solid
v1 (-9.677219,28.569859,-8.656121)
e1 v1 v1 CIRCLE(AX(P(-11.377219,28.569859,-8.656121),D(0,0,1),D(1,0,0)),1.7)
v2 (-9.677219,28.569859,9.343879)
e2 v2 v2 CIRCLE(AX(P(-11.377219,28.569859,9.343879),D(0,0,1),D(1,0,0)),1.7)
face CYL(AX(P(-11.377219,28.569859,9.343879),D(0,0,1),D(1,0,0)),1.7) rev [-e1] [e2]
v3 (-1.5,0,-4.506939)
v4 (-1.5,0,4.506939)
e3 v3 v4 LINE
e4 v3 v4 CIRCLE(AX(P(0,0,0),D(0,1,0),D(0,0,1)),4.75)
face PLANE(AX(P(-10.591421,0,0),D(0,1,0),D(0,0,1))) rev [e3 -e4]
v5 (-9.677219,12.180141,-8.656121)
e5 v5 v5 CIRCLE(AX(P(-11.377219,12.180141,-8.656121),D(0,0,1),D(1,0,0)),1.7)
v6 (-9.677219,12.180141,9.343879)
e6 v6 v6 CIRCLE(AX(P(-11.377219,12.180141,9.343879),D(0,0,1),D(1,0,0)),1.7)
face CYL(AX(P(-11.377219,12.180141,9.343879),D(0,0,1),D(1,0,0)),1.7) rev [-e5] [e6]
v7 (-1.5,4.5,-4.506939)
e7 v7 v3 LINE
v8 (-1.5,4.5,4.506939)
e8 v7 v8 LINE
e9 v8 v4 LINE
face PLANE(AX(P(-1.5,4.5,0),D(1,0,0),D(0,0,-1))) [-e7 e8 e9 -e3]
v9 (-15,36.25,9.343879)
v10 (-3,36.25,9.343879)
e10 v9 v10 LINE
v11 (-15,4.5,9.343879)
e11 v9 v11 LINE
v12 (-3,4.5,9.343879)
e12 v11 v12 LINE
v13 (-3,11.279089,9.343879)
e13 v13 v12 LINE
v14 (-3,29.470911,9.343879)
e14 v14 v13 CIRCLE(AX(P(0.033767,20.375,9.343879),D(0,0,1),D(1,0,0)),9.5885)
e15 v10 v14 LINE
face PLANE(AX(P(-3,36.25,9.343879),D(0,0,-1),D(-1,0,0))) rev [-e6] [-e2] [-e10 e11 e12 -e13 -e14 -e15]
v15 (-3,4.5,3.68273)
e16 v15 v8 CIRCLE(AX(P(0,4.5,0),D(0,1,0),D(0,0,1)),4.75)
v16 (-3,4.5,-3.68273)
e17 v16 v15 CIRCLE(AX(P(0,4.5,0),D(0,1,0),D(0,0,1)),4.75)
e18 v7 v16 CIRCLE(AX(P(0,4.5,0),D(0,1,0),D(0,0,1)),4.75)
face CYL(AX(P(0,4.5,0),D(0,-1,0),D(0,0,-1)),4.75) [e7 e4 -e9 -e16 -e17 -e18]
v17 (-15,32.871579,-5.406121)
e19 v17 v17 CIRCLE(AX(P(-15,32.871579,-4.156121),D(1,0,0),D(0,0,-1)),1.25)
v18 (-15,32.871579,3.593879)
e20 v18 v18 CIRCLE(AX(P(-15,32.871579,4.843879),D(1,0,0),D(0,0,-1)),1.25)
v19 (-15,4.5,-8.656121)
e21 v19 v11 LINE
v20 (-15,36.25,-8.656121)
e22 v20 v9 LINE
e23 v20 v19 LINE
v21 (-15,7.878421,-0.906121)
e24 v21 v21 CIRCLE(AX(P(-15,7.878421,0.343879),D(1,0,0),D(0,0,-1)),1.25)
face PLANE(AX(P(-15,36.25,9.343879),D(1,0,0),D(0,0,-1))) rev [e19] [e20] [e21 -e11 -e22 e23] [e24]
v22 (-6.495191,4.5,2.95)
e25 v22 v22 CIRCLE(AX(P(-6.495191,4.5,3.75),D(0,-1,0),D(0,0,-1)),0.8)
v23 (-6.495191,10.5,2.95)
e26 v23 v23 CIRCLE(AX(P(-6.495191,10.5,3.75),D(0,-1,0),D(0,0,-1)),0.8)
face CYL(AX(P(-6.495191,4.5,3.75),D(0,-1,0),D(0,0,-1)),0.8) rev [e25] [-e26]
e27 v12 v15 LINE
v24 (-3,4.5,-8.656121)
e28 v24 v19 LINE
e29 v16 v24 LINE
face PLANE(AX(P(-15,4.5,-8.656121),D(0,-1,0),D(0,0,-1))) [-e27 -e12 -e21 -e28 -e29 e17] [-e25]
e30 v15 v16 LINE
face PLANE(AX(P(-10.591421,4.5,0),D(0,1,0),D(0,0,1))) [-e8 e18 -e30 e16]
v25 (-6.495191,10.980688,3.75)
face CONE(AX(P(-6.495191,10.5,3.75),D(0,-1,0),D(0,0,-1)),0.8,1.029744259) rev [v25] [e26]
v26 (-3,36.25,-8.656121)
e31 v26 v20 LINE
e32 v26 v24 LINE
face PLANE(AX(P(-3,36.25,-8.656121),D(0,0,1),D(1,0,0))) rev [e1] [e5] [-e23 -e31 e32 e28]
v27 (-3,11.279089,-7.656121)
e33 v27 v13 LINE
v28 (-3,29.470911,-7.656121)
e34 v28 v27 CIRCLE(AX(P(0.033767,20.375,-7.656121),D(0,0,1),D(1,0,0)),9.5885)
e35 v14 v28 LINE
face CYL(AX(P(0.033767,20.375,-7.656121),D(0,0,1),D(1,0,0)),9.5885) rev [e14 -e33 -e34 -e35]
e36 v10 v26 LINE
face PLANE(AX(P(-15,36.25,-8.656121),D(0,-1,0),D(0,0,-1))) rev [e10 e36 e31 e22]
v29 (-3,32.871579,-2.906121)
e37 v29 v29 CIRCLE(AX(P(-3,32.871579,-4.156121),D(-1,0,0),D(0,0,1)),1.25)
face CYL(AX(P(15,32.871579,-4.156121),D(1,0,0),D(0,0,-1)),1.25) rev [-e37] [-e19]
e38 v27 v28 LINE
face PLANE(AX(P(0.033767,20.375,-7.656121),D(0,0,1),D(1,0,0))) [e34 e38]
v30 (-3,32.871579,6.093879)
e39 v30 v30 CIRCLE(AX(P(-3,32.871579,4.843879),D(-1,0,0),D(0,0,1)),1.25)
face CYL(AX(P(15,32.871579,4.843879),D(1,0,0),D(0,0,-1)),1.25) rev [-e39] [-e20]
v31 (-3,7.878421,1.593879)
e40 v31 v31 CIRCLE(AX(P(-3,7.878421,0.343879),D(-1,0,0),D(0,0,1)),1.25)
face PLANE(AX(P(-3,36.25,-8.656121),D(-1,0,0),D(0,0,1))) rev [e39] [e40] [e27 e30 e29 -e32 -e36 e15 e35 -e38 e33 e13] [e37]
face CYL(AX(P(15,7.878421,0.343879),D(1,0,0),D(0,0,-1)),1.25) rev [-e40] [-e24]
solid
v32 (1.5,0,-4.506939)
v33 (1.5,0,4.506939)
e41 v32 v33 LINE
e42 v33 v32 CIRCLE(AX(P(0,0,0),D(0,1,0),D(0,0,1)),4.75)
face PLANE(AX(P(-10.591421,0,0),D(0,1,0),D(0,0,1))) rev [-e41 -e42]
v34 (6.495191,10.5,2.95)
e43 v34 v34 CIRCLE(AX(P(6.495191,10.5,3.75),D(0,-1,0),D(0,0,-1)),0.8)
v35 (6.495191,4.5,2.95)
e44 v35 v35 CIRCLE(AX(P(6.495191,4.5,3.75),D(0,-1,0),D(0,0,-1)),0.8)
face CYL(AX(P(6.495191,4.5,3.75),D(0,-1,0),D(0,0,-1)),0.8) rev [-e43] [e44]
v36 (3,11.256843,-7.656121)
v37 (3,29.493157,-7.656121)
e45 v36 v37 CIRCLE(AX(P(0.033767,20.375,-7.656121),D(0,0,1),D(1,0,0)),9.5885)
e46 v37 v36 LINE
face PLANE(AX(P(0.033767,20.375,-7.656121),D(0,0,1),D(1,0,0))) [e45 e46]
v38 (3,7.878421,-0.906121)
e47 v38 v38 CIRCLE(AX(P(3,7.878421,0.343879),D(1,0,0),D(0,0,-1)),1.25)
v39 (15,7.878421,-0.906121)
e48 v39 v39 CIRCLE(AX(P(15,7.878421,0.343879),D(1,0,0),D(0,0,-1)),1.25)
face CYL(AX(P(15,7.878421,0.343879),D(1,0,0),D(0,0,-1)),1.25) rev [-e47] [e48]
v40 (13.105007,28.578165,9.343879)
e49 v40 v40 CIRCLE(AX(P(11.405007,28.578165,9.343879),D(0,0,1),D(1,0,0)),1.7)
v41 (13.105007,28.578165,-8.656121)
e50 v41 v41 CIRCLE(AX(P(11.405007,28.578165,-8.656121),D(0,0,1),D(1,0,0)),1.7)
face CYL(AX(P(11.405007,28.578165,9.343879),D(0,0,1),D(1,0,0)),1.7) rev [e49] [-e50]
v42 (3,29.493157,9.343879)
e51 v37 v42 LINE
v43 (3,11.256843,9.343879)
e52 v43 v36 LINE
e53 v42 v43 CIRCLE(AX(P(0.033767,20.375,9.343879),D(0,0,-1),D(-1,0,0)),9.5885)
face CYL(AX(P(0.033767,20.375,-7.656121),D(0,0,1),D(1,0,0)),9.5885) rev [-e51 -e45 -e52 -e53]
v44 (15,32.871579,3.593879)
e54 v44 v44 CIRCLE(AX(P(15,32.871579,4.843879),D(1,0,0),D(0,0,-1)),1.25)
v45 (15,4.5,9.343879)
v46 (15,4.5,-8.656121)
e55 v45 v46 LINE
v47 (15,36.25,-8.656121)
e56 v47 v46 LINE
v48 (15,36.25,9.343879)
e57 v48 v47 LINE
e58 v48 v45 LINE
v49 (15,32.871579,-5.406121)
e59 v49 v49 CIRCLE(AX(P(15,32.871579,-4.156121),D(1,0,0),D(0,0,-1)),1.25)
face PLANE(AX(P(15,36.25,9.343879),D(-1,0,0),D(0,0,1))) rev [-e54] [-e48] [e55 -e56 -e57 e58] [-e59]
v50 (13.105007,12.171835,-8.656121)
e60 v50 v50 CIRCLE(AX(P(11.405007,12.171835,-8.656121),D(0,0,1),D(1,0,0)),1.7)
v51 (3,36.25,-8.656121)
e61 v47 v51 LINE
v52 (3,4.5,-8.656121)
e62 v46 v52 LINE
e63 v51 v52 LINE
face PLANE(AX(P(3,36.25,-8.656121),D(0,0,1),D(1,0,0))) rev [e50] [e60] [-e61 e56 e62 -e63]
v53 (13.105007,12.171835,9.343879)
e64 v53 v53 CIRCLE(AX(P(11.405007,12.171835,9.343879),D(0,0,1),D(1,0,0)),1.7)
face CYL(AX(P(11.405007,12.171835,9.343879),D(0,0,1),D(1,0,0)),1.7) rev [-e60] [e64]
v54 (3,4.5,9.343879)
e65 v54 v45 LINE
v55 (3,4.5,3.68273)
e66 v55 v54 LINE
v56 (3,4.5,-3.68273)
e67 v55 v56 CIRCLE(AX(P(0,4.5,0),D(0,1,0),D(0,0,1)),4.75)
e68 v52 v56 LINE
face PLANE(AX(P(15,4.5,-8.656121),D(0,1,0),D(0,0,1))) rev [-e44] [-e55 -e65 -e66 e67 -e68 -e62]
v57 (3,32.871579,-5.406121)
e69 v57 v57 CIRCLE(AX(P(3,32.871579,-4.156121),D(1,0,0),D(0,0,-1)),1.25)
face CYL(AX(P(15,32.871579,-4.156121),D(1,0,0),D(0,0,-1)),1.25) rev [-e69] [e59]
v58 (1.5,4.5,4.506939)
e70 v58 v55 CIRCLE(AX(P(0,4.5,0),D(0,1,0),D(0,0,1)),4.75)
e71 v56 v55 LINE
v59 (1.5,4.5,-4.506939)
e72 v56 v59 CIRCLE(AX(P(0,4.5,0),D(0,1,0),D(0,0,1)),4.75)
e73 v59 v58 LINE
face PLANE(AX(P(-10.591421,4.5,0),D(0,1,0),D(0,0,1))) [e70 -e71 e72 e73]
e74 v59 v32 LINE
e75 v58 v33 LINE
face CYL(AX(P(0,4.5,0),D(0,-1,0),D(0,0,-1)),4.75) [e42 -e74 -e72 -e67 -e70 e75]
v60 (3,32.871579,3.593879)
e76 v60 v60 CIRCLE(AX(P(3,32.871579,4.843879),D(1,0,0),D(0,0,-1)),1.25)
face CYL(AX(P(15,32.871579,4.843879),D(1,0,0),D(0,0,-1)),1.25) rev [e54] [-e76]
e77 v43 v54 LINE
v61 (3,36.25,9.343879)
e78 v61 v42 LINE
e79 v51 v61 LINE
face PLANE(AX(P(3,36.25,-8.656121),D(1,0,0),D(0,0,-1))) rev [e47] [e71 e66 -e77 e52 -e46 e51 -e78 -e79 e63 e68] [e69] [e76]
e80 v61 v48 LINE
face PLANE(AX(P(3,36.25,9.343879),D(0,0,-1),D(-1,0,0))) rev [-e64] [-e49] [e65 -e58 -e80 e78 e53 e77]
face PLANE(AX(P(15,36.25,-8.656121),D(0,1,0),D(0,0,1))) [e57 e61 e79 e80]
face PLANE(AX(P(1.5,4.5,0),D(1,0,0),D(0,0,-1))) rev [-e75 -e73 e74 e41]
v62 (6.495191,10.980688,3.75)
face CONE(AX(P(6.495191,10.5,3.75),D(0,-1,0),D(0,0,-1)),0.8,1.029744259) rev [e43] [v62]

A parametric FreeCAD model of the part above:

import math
import FreeCAD as App
import Part
import Sketcher
from FreeCAD import Vector
Q = App.Units.Quantity

doc = App.newDocument("Part")
params = doc.addObject("Spreadsheet::Sheet", "Params")
for row, (alias, value) in enumerate([
    ("sketch1_width", "12 mm"),
    ("sketch1_height", "18 mm"),
    ("pad1_length", "31.75 mm"),
    ("sketch2_width", "12 mm"),
    ("sketch2_height", "18 mm"),
    ("pad2_length", "31.75 mm"),
    ("sketch3_radius", "4.75 mm"),
    ("pad3_length", "4.5 mm"),
    ("pocket1_length", "17 mm"),
    ("sketch5_diameter", "3.4 mm"),
    ("hole_diameter", "3.4 mm"),
    ("sketch6_diameter", "2.5 mm"),
    ("hole2_diameter", "2.5 mm"),
    ("sketch7_diameter", "1.6 mm"),
    ("hole3_diameter", "1.6 mm"),
    ("hole3_depth", "6 mm"),
], start=1):
    params.set(f"A{row}", alias)
    params.set(f"B{row}", "=" + value)
    params.setAlias(f"B{row}", alias)

body = doc.addObject("PartDesign::Body", "Body")

# Sketch on XZ plane
sketch1 = body.newObject("Sketcher::SketchObject", "Sketch")
sketch1.AttachmentSupport = (doc.getObject("XZ_Plane"), [""])
sketch1.MapMode = "FlatFace"
sketch1.AttachmentOffset = App.Placement(Vector(0, 0, -4.5), App.Rotation())
sketch1.addGeometry([
    Part.LineSegment(Vector(-3, 9, 0), Vector(-3, -9, 0)),
    Part.LineSegment(Vector(-3, -9, 0), Vector(-15, -9, 0)),
    Part.LineSegment(Vector(-15, -9, 0), Vector(-15, 9, 0)),
    Part.LineSegment(Vector(-15, 9, 0), Vector(-3, 9, 0)),
], False)
sketch1.addConstraint([
    Sketcher.Constraint("Coincident", 0, 2, 1, 1),
    Sketcher.Constraint("Coincident", 1, 2, 2, 1),
    Sketcher.Constraint("Coincident", 2, 2, 3, 1),
    Sketcher.Constraint("Coincident", 3, 2, 0, 1),
    Sketcher.Constraint("Vertical", 0),
    Sketcher.Constraint("Horizontal", 1),
    Sketcher.Constraint("Vertical", 2),
    Sketcher.Constraint("Horizontal", 3),
    Sketcher.Constraint("DistanceX", 1, 2, 1, 1, Q("12 mm")),
    Sketcher.Constraint("DistanceY", 0, 2, 0, 1, Q("18 mm")),
    Sketcher.Constraint("DistanceX", 0, 2, -1, 1, Q("3 mm")),
    Sketcher.Constraint("DistanceY", 0, 2, -1, 1, Q("8.656121 mm")),
])
sketch1.setExpression("Constraints[8]", "Params.sketch1_width")
sketch1.setExpression("Constraints[9]", "Params.sketch1_height")
pad1 = body.newObject("PartDesign::Pad", "Pad")
pad1.Profile = sketch1
pad1.setExpression("Length", "Params.pad1_length")
pad1.Reversed = True
body2 = doc.addObject("PartDesign::Body", "Body001")

# Sketch on XZ plane
sketch2 = body2.newObject("Sketcher::SketchObject", "Sketch001")
sketch2.AttachmentSupport = (doc.getObject("XZ_Plane001"), [""])
sketch2.MapMode = "FlatFace"
sketch2.AttachmentOffset = App.Placement(Vector(0, 0, -4.5), App.Rotation())
sketch2.addGeometry([
    Part.LineSegment(Vector(15, 9, 0), Vector(15, -9, 0)),
    Part.LineSegment(Vector(15, -9, 0), Vector(3, -9, 0)),
    Part.LineSegment(Vector(3, -9, 0), Vector(3, 9, 0)),
    Part.LineSegment(Vector(3, 9, 0), Vector(15, 9, 0)),
], False)
sketch2.addConstraint([
    Sketcher.Constraint("Coincident", 0, 2, 1, 1),
    Sketcher.Constraint("Coincident", 1, 2, 2, 1),
    Sketcher.Constraint("Coincident", 2, 2, 3, 1),
    Sketcher.Constraint("Coincident", 3, 2, 0, 1),
    Sketcher.Constraint("Vertical", 0),
    Sketcher.Constraint("Horizontal", 1),
    Sketcher.Constraint("Vertical", 2),
    Sketcher.Constraint("Horizontal", 3),
    Sketcher.Constraint("DistanceX", 1, 2, 1, 1, Q("12 mm")),
    Sketcher.Constraint("DistanceY", 0, 2, 0, 1, Q("18 mm")),
    Sketcher.Constraint("DistanceX", -1, 1, 0, 2, Q("15 mm")),
    Sketcher.Constraint("DistanceY", 0, 2, -1, 1, Q("8.656121 mm")),
])
sketch2.setExpression("Constraints[8]", "Params.sketch2_width")
sketch2.setExpression("Constraints[9]", "Params.sketch2_height")
pad2 = body2.newObject("PartDesign::Pad", "Pad001")
pad2.Profile = sketch2
pad2.setExpression("Length", "Params.pad2_length")
pad2.Reversed = True
body.AllowCompound = True
doc.recompute()

boolean = body.newObject("PartDesign::Boolean", "Boolean")
boolean.Type = "Fuse"
boolean.addObjects([body2])

# Sketch on XZ plane
sketch3 = body.newObject("Sketcher::SketchObject", "Sketch002")
sketch3.AttachmentSupport = (doc.getObject("XZ_Plane"), [""])
sketch3.MapMode = "FlatFace"
sketch3.addGeometry([
    Part.ArcOfCircle(Part.Circle(Vector(0, 0, 0), Vector(0, 0, 1), 4.8), math.radians(-72), math.radians(0)),  # 0
    Part.LineSegment(Vector(1.5, -4.5, 0), Vector(1.5, 4.5, 0)),  # 1
    Part.ArcOfCircle(Part.Circle(Vector(0, 0, 0), Vector(0, 0, 1), 4.8), math.radians(0), math.radians(72)),  # 2
    Part.LineSegment(Vector(-1.5, 4.5, 0), Vector(-1.5, -4.5, 0)),  # 3
    Part.ArcOfCircle(Part.Circle(Vector(0, 0, 0), Vector(0, 0, 1), 4.8), math.radians(108), math.radians(252)),  # 4
], False)
sketch3.addConstraint([
    Sketcher.Constraint("Coincident", 0, 1, 1, 1),
    Sketcher.Constraint("Coincident", 1, 2, 2, 2),
    Sketcher.Constraint("Tangent", 2, 1, 0, 2),
    Sketcher.Constraint("Coincident", 3, 1, 4, 1),
    Sketcher.Constraint("Coincident", 4, 2, 3, 2),
    Sketcher.Constraint("Vertical", 1),
    Sketcher.Constraint("Vertical", 3),
    Sketcher.Constraint("Coincident", 0, 3, -1, 1),
    Sketcher.Constraint("Coincident", 4, 3, -1, 1),
    Sketcher.Constraint("Equal", 0, 2),
    Sketcher.Constraint("Equal", 2, 4),
    Sketcher.Constraint("PointOnObject", 2, 1, -1),
    Sketcher.Constraint("Horizontal", 1, 2, 3, 1),
    Sketcher.Constraint("Radius", 0, Q("4.75 mm")),
    Sketcher.Constraint("DistanceX", 3, 1, 1, 2, Q("3 mm")),
])
sketch3.setExpression("Constraints[13]", "Params.sketch3_radius")
pad3 = body.newObject("PartDesign::Pad", "Pad002")
pad3.Profile = sketch3
pad3.setExpression("Length", "Params.pad3_length")
pad3.Reversed = True

# Sketch on XY plane
sketch4 = body.newObject("Sketcher::SketchObject", "Sketch003")
sketch4.AttachmentSupport = (doc.getObject("XY_Plane"), [""])
sketch4.MapMode = "FlatFace"
sketch4.AttachmentOffset = App.Placement(Vector(0, 0, 9.343879), App.Rotation())
sketch4.addGeometry(Part.Circle(Vector(0, 20, 0), Vector(0, 0, 1), 10), False)
sketch4.addConstraint([
    Sketcher.Constraint("Diameter", 0, Q("19.177 mm")),
    Sketcher.Constraint("DistanceY", -1, 1, 0, 3, Q("20.375 mm")),
    Sketcher.Constraint("DistanceX", -1, 1, 0, 3, Q("0.033767 mm")),
])
pocket1 = body.newObject("PartDesign::Pocket", "Pocket")
pocket1.Profile = sketch4
pocket1.setExpression("Length", "Params.pocket1_length")

# Sketch on XY plane
sketch5 = body.newObject("Sketcher::SketchObject", "Sketch004")
sketch5.AttachmentSupport = (doc.getObject("XY_Plane"), [""])
sketch5.MapMode = "FlatFace"
sketch5.AttachmentOffset = App.Placement(Vector(0, 0, 9.343879), App.Rotation())
sketch5.addGeometry([
    Part.Circle(Vector(-11.4, 28.6, 0), Vector(0, 0, 1), 1.7),
    Part.Circle(Vector(-11.4, 12.2, 0), Vector(0, 0, 1), 1.7),
    Part.Circle(Vector(11.4, 12.2, 0), Vector(0, 0, 1), 1.7),
    Part.Circle(Vector(11.4, 28.6, 0), Vector(0, 0, 1), 1.7),
], False)
sketch5.addConstraint([
    Sketcher.Constraint("Equal", 0, 1),
    Sketcher.Constraint("Equal", 1, 2),
    Sketcher.Constraint("Equal", 2, 3),
    Sketcher.Constraint("Vertical", 0, 3, 1, 3),
    Sketcher.Constraint("Vertical", 2, 3, 3, 3),
    Sketcher.Constraint("Diameter", 0, Q("3.4 mm")),
    Sketcher.Constraint("DistanceX", 0, 3, -1, 1, Q("11.377219 mm")),
    Sketcher.Constraint("DistanceY", -1, 1, 0, 3, Q("28.569859 mm")),
    Sketcher.Constraint("DistanceY", -1, 1, 1, 3, Q("12.180141 mm")),
    Sketcher.Constraint("DistanceY", 2, 3, 3, 3, Q("16.406331 mm")),
    Sketcher.Constraint("DistanceX", -1, 1, 2, 3, Q("11.405007 mm")),
    Sketcher.Constraint("DistanceY", -1, 1, 2, 3, Q("12.171835 mm")),
])
sketch5.setExpression("Constraints[5]", "Params.sketch5_diameter")
doc.recompute()
hole = body.newObject("PartDesign::Hole", "Hole")
hole.Profile = sketch5
hole.ThreadType = "None"
hole.setExpression("Diameter", "Params.hole_diameter")
hole.DepthType = "ThroughAll"

# Sketch on YZ plane
sketch6 = body.newObject("Sketcher::SketchObject", "Sketch005")
sketch6.AttachmentSupport = (doc.getObject("YZ_Plane"), [""])
sketch6.MapMode = "FlatFace"
sketch6.AttachmentOffset = App.Placement(Vector(0, 0, 15), App.Rotation())
sketch6.addGeometry([
    Part.Circle(Vector(32.9, 4.8, 0), Vector(0, 0, 1), 1.2),
    Part.Circle(Vector(32.9, -4.2, 0), Vector(0, 0, 1), 1.2),
    Part.Circle(Vector(7.9, 0.3, 0), Vector(0, 0, 1), 1.2),
], False)
sketch6.addConstraint([
    Sketcher.Constraint("Equal", 0, 1),
    Sketcher.Constraint("Equal", 1, 2),
    Sketcher.Constraint("Vertical", 0, 3, 1, 3),
    Sketcher.Constraint("Diameter", 0, Q("2.5 mm")),
    Sketcher.Constraint("DistanceY", 1, 3, 0, 3, Q("9 mm")),
    Sketcher.Constraint("DistanceY", 2, 3, 0, 3, Q("4.5 mm")),
    Sketcher.Constraint("DistanceX", -1, 1, 0, 3, Q("32.871579 mm")),
    Sketcher.Constraint("DistanceY", -1, 1, 0, 3, Q("4.843879 mm")),
    Sketcher.Constraint("DistanceX", -1, 1, 2, 3, Q("7.878421 mm")),
])
sketch6.setExpression("Constraints[3]", "Params.sketch6_diameter")
doc.recompute()
hole2 = body.newObject("PartDesign::Hole", "Hole001")
hole2.Profile = sketch6
hole2.ThreadType = "None"
hole2.setExpression("Diameter", "Params.hole2_diameter")
hole2.DepthType = "ThroughAll"

# Sketch on XZ plane
sketch7 = body.newObject("Sketcher::SketchObject", "Sketch006")
sketch7.AttachmentSupport = (doc.getObject("XZ_Plane"), [""])
sketch7.MapMode = "FlatFace"
sketch7.AttachmentOffset = App.Placement(Vector(0, 0, -4.5), App.Rotation())
sketch7.addGeometry([
    Part.Circle(Vector(-6.5, 3.8, 0), Vector(0, 0, 1), 0.8),
    Part.Circle(Vector(6.5, 3.8, 0), Vector(0, 0, 1), 0.8),
], False)
sketch7.addConstraint([
    Sketcher.Constraint("Equal", 0, 1),
    Sketcher.Constraint("Symmetric", 0, 3, 1, 3, -2),
    Sketcher.Constraint("Diameter", 0, Q("1.6 mm")),
    Sketcher.Constraint("DistanceY", -1, 1, 0, 3, Q("3.75 mm")),
    Sketcher.Constraint("DistanceX", 0, 3, -1, 1, Q("6.495191 mm")),
])
sketch7.setExpression("Constraints[2]", "Params.sketch7_diameter")
doc.recompute()
hole3 = body.newObject("PartDesign::Hole", "Hole002")
hole3.Profile = sketch7
hole3.ThreadType = "None"
hole3.setExpression("Diameter", "Params.hole3_diameter")
hole3.DepthType = "Dimension"
hole3.setExpression("Depth", "Params.hole3_depth")
hole3.DrillPoint = "Angled"
hole3.DrillPointAngle = 118

doc.recompute()
